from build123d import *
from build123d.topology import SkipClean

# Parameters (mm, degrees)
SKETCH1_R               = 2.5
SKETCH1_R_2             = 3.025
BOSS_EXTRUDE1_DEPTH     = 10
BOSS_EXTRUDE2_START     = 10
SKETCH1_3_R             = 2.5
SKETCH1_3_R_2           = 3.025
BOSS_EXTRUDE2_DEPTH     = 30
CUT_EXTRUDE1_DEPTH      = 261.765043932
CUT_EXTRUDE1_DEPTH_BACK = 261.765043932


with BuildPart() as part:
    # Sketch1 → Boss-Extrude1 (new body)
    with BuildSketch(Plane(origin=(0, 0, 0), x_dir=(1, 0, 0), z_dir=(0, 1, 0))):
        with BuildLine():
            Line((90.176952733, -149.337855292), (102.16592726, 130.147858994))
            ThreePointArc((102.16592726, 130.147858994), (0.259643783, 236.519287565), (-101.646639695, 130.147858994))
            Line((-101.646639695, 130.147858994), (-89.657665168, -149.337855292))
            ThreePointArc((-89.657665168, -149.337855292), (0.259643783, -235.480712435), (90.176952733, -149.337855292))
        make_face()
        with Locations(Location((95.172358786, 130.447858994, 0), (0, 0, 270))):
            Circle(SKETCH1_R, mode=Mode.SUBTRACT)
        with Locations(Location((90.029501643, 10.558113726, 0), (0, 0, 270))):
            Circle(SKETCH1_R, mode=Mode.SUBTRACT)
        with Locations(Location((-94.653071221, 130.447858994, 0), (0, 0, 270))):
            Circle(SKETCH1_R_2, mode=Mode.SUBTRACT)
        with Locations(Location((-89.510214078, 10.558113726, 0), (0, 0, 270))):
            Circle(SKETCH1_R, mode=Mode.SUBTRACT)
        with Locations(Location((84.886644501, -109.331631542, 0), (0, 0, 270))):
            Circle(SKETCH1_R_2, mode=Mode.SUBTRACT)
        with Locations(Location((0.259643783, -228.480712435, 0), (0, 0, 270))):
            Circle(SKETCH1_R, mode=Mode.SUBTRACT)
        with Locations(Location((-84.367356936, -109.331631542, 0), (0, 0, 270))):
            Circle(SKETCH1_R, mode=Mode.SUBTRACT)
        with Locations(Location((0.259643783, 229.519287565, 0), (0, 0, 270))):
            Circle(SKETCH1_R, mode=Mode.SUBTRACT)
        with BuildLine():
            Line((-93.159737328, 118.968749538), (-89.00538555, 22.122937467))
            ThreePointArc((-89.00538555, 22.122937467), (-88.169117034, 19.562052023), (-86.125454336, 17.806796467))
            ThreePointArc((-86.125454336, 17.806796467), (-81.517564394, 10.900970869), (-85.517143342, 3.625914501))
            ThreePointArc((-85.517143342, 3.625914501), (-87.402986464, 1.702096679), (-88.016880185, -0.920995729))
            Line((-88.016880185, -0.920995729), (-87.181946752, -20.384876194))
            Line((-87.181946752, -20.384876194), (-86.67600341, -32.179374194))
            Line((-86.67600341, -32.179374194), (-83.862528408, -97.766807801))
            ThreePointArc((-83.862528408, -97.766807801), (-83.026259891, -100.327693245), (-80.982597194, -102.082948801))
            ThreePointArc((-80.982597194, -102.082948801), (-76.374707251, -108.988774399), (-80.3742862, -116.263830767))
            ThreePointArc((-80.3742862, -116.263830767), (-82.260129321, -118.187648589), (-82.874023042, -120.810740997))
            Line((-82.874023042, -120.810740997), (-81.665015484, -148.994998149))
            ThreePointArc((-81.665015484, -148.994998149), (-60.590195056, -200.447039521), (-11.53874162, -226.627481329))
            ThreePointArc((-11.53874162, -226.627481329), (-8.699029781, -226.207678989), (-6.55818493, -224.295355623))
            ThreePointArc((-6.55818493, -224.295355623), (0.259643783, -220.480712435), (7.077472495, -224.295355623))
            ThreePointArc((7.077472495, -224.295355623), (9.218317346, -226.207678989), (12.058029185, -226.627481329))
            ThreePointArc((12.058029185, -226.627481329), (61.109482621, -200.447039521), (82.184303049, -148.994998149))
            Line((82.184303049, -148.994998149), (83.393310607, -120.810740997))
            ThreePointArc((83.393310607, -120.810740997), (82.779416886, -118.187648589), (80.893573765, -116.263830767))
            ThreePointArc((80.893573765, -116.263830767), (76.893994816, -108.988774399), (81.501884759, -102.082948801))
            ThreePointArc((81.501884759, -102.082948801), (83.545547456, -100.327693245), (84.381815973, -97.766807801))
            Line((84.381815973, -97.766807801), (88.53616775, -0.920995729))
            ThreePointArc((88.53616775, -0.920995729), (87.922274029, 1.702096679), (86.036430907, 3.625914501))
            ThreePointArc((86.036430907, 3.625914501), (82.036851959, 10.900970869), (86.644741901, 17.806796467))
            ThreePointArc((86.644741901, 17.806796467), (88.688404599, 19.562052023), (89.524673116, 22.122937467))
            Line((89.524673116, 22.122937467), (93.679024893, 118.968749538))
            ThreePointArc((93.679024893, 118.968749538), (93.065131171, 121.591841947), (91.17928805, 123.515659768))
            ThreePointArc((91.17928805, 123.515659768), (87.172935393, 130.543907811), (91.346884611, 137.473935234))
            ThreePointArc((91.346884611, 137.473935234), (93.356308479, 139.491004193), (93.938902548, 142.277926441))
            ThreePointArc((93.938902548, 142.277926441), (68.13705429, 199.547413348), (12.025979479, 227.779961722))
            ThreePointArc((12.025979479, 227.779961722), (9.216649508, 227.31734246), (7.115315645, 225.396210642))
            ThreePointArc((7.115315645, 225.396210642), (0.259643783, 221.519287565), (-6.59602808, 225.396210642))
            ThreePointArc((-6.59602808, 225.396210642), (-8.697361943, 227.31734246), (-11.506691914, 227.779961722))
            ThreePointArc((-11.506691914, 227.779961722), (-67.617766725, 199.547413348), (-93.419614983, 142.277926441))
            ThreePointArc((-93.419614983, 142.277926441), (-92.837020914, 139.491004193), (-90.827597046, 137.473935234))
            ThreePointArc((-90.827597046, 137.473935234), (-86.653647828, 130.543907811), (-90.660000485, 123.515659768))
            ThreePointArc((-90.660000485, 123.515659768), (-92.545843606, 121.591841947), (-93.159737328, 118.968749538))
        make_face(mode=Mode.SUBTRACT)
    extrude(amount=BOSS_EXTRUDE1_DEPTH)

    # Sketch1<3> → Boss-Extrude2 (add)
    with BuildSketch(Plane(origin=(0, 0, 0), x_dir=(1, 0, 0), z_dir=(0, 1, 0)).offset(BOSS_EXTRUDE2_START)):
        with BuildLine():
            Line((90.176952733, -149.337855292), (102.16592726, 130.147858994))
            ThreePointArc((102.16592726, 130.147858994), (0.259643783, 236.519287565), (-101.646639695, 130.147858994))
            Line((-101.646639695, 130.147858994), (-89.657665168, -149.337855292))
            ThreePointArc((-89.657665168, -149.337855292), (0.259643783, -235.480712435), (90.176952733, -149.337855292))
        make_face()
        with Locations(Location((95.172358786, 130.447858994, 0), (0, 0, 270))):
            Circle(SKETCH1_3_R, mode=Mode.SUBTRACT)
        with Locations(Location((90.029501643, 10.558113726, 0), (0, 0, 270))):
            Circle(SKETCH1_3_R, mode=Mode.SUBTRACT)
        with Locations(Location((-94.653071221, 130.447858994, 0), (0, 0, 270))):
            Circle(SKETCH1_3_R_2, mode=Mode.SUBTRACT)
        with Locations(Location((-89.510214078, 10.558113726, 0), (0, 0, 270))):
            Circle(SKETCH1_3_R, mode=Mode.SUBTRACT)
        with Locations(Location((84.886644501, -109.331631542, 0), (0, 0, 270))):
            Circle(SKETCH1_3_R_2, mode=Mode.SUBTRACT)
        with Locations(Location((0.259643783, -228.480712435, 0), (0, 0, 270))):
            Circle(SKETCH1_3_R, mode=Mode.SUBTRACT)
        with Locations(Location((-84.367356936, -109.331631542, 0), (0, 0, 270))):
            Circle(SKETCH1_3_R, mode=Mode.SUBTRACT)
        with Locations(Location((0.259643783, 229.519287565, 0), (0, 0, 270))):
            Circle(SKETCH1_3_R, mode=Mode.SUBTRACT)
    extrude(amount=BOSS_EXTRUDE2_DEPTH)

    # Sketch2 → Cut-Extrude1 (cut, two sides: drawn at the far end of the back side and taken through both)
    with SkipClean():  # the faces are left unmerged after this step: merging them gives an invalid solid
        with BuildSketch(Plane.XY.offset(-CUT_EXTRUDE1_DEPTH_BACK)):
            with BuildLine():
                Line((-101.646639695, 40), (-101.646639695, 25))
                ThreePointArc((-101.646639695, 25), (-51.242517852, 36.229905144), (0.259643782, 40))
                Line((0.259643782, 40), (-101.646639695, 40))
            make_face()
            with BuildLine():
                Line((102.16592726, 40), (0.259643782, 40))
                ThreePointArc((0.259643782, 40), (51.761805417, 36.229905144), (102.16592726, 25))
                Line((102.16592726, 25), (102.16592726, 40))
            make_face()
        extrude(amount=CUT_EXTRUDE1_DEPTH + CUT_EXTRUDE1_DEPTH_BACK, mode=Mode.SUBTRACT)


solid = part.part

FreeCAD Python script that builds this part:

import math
import FreeCAD as App
import Part
import Sketcher

V = App.Vector

doc = App.newDocument("Part")
body = doc.addObject("PartDesign::Body", "Body")

# Sketch on XZ plane
sketch1 = body.newObject("Sketcher::SketchObject", "Sketch")
sketch1.AttachmentSupport = (doc.getObject("XZ_Plane"), [""])
sketch1.MapMode = "FlatFace"
sketch1.addGeometry(Part.LineSegment(V(90.2, 149.3, 0), V(102.2, -130.1, 0)), False)
sketch1.addGeometry(Part.ArcOfCircle(Part.Circle(V(0.3, -134.5, 0), V(0, 0, 1), 102), math.radians(178), math.radians(362)), False)
sketch1.addGeometry(Part.LineSegment(V(-101.6, -130.1, 0), V(-89.7, 149.3, 0)), False)
sketch1.addGeometry(Part.ArcOfCircle(Part.Circle(V(0.3, 145.5, 0), V(0, 0, 1), 90), math.radians(2), math.radians(178)), False)
sketch1.addGeometry(Part.Circle(V(-84.4, 109.3, 0), V(0, 0, 1), 2.5), False)
sketch1.addGeometry(Part.Circle(V(0.3, 228.5, 0), V(0, 0, 1), 2.5), False)
sketch1.addGeometry(Part.Circle(V(84.9, 109.3, 0), V(0, 0, 1), 3), False)
sketch1.addGeometry(Part.Circle(V(-89.5, -10.6, 0), V(0, 0, 1), 2.5), False)
sketch1.addGeometry(Part.Circle(V(-94.7, -130.4, 0), V(0, 0, 1), 3), False)
sketch1.addGeometry(Part.LineSegment(V(-89, -22.1, 0), V(-93.2, -119, 0)), False)
sketch1.addGeometry(Part.ArcOfCircle(Part.Circle(V(-88.2, -119.2, 0), V(0, 0, 1), 5), math.radians(178), math.radians(240)), False)
sketch1.addGeometry(Part.ArcOfCircle(Part.Circle(V(-94.7, -130.4, 0), V(0, 0, 1), 8), math.radians(-61), math.radians(60)), False)
sketch1.addGeometry(Part.ArcOfCircle(Part.Circle(V(-88.4, -141.9, 0), V(0, 0, 1), 5), math.radians(119), math.radians(185)), False)
sketch1.addGeometry(Part.ArcOfCircle(Part.Circle(V(0.3, -134.5, 0), V(0, 0, 1), 94), math.radians(-175), math.radians(-97)), False)
sketch1.addGeometry(Part.ArcOfCircle(Part.Circle(V(-10.9, -222.8, 0), V(0, 0, 1), 5), math.radians(-97), math.radians(-31)), False)
sketch1.addGeometry(Part.ArcOfCircle(Part.Circle(V(0.3, -229.5, 0), V(0, 0, 1), 8), math.radians(31), math.radians(149)), False)
sketch1.addGeometry(Part.ArcOfCircle(Part.Circle(V(11.4, -222.8, 0), V(0, 0, 1), 5), math.radians(-149), math.radians(-83)), False)
sketch1.addGeometry(Part.ArcOfCircle(Part.Circle(V(0.3, -134.5, 0), V(0, 0, 1), 94), math.radians(-83), math.radians(-5)), False)
sketch1.addGeometry(Part.ArcOfCircle(Part.Circle(V(89, -141.9, 0), V(0, 0, 1), 5), math.radians(-5), math.radians(61)), False)
sketch1.addGeometry(Part.ArcOfCircle(Part.Circle(V(95.2, -130.4, 0), V(0, 0, 1), 8), math.radians(120), math.radians(241)), False)
sketch1.addGeometry(Part.ArcOfCircle(Part.Circle(V(88.7, -119.2, 0), V(0, 0, 1), 5), math.radians(-60), math.radians(2)), False)
sketch1.addGeometry(Part.LineSegment(V(93.7, -119, 0), V(89.5, -22.1, 0)), False)
sketch1.addGeometry(Part.ArcOfCircle(Part.Circle(V(84.5, -22.3, 0), V(0, 0, 1), 5), math.radians(2), math.radians(65)), False)
sketch1.addGeometry(Part.ArcOfCircle(Part.Circle(V(90, -10.6, 0), V(0, 0, 1), 8), math.radians(120), math.radians(245)), False)
sketch1.addGeometry(Part.ArcOfCircle(Part.Circle(V(83.5, 0.7, 0), V(0, 0, 1), 5), math.radians(-60), math.radians(2)), False)
sketch1.addGeometry(Part.LineSegment(V(88.5, 0.9, 0), V(84.4, 97.8, 0)), False)
sketch1.addGeometry(Part.ArcOfCircle(Part.Circle(V(79.4, 97.6, 0), V(0, 0, 1), 5), math.radians(2), math.radians(65)), False)
sketch1.addGeometry(Part.ArcOfCircle(Part.Circle(V(84.9, 109.3, 0), V(0, 0, 1), 8), math.radians(120), math.radians(245)), False)
sketch1.addGeometry(Part.ArcOfCircle(Part.Circle(V(78.4, 120.6, 0), V(0, 0, 1), 5), math.radians(-60), math.radians(2)), False)
sketch1.addGeometry(Part.LineSegment(V(83.4, 120.8, 0), V(82.2, 149, 0)), False)
sketch1.addGeometry(Part.ArcOfCircle(Part.Circle(V(0.3, 145.5, 0), V(0, 0, 1), 82), math.radians(2), math.radians(82)), False)
sketch1.addGeometry(Part.ArcOfCircle(Part.Circle(V(11.3, 221.7, 0), V(0, 0, 1), 5), math.radians(82), math.radians(148)), False)
sketch1.addGeometry(Part.ArcOfCircle(Part.Circle(V(0.3, 228.5, 0), V(0, 0, 1), 8), math.radians(-148), math.radians(-32)), False)
sketch1.addGeometry(Part.ArcOfCircle(Part.Circle(V(-10.8, 221.7, 0), V(0, 0, 1), 5), math.radians(32), math.radians(98)), False)
sketch1.addGeometry(Part.ArcOfCircle(Part.Circle(V(0.3, 145.5, 0), V(0, 0, 1), 82), math.radians(98), math.radians(178)), False)
sketch1.addGeometry(Part.LineSegment(V(-81.7, 149, 0), V(-82.9, 120.8, 0)), False)
sketch1.addGeometry(Part.ArcOfCircle(Part.Circle(V(-77.9, 120.6, 0), V(0, 0, 1), 5), math.radians(178), math.radians(240)), False)
sketch1.addGeometry(Part.ArcOfCircle(Part.Circle(V(-84.4, 109.3, 0), V(0, 0, 1), 8), math.radians(-65), math.radians(60)), False)
sketch1.addGeometry(Part.ArcOfCircle(Part.Circle(V(-78.9, 97.6, 0), V(0, 0, 1), 5), math.radians(115), math.radians(178)), False)
sketch1.addGeometry(Part.LineSegment(V(-83.9, 97.8, 0), V(-86.7, 32.2, 0)), False)
sketch1.addGeometry(Part.LineSegment(V(-86.7, 32.2, 0), V(-87.2, 20.4, 0)), False)
sketch1.addGeometry(Part.LineSegment(V(-87.2, 20.4, 0), V(-88, 0.9, 0)), False)
sketch1.addGeometry(Part.ArcOfCircle(Part.Circle(V(-83, 0.7, 0), V(0, 0, 1), 5), math.radians(178), math.radians(240)), False)
sketch1.addGeometry(Part.ArcOfCircle(Part.Circle(V(-89.5, -10.6, 0), V(0, 0, 1), 8), math.radians(-65), math.radians(60)), False)
sketch1.addGeometry(Part.ArcOfCircle(Part.Circle(V(-84, -22.3, 0), V(0, 0, 1), 5), math.radians(115), math.radians(178)), False)
sketch1.addGeometry(Part.Circle(V(90, -10.6, 0), V(0, 0, 1), 2.5), False)
sketch1.addGeometry(Part.Circle(V(0.3, -229.5, 0), V(0, 0, 1), 2.5), False)
sketch1.addGeometry(Part.Circle(V(95.2, -130.4, 0), V(0, 0, 1), 2.5), False)
sketch1.addConstraint(Sketcher.Constraint("Tangent", 0, 2, 1, 2))
sketch1.addConstraint(Sketcher.Constraint("Tangent", 1, 1, 2, 1))
sketch1.addConstraint(Sketcher.Constraint("Tangent", 2, 2, 3, 2))
sketch1.addConstraint(Sketcher.Constraint("Tangent", 3, 1, 0, 1))
sketch1.addConstraint(Sketcher.Constraint("Tangent", 9, 2, 10, 1))
sketch1.addConstraint(Sketcher.Constraint("Tangent", 10, 2, 11, 2))
sketch1.addConstraint(Sketcher.Constraint("Tangent", 11, 1, 12, 1))
sketch1.addConstraint(Sketcher.Constraint("Tangent", 12, 2, 13, 1))
sketch1.addConstraint(Sketcher.Constraint("Tangent", 13, 2, 14, 1))
sketch1.addConstraint(Sketcher.Constraint("Tangent", 14, 2, 15, 2))
sketch1.addConstraint(Sketcher.Constraint("Tangent", 15, 1, 16, 1))
sketch1.addConstraint(Sketcher.Constraint("Tangent", 16, 2, 17, 1))
sketch1.addConstraint(Sketcher.Constraint("Tangent", 17, 2, 18, 1))
sketch1.addConstraint(Sketcher.Constraint("Tangent", 18, 2, 19, 2))
sketch1.addConstraint(Sketcher.Constraint("Tangent", 19, 1, 20, 1))
sketch1.addConstraint(Sketcher.Constraint("Tangent", 20, 2, 21, 1))
sketch1.addConstraint(Sketcher.Constraint("Tangent", 21, 2, 22, 1))
sketch1.addConstraint(Sketcher.Constraint("Tangent", 22, 2, 23, 2))
sketch1.addConstraint(Sketcher.Constraint("Tangent", 23, 1, 24, 1))
sketch1.addConstraint(Sketcher.Constraint("Tangent", 24, 2, 25, 1))
sketch1.addConstraint(Sketcher.Constraint("Tangent", 25, 2, 26, 1))
sketch1.addConstraint(Sketcher.Constraint("Tangent", 26, 2, 27, 2))
sketch1.addConstraint(Sketcher.Constraint("Tangent", 27, 1, 28, 1))
sketch1.addConstraint(Sketcher.Constraint("Tangent", 28, 2, 29, 1))
sketch1.addConstraint(Sketcher.Constraint("Tangent", 29, 2, 30, 1))
sketch1.addConstraint(Sketcher.Constraint("Tangent", 30, 2, 31, 1))
sketch1.addConstraint(Sketcher.Constraint("Tangent", 31, 2, 32, 2))
sketch1.addConstraint(Sketcher.Constraint("Tangent", 32, 1, 33, 1))
sketch1.addConstraint(Sketcher.Constraint("Tangent", 33, 2, 34, 1))
sketch1.addConstraint(Sketcher.Constraint("Tangent", 34, 2, 35, 1))
sketch1.addConstraint(Sketcher.Constraint("Tangent", 35, 2, 36, 1))
sketch1.addConstraint(Sketcher.Constraint("Tangent", 36, 2, 37, 2))
sketch1.addConstraint(Sketcher.Constraint("Tangent", 37, 1, 38, 1))
sketch1.addConstraint(Sketcher.Constraint("Tangent", 38, 2, 39, 1))
sketch1.addConstraint(Sketcher.Constraint("Coincident", 39, 2, 40, 1))
sketch1.addConstraint(Sketcher.Constraint("Coincident", 40, 2, 41, 1))
sketch1.addConstraint(Sketcher.Constraint("Tangent", 41, 2, 42, 1))
sketch1.addConstraint(Sketcher.Constraint("Tangent", 42, 2, 43, 2))
sketch1.addConstraint(Sketcher.Constraint("Tangent", 43, 1, 44, 1))
sketch1.addConstraint(Sketcher.Constraint("Tangent", 44, 2, 9, 1))
sketch1.addConstraint(Sketcher.Constraint("Coincident", 11, 3, 8, 3))
sketch1.addConstraint(Sketcher.Constraint("Coincident", 13, 3, 1, 3))
sketch1.addConstraint(Sketcher.Constraint("Coincident", 17, 3, 1, 3))
sketch1.addConstraint(Sketcher.Constraint("Coincident", 27, 3, 6, 3))
sketch1.addConstraint(Sketcher.Constraint("Coincident", 30, 3, 3, 3))
sketch1.addConstraint(Sketcher.Constraint("Coincident", 32, 3, 5, 3))
sketch1.addConstraint(Sketcher.Constraint("Coincident", 34, 3, 3, 3))
sketch1.addConstraint(Sketcher.Constraint("Coincident", 37, 3, 4, 3))
sketch1.addConstraint(Sketcher.Constraint("Coincident", 43, 3, 7, 3))
sketch1.addConstraint(Sketcher.Constraint("Coincident", 45, 3, 23, 3))
sketch1.addConstraint(Sketcher.Constraint("Coincident", 46, 3, 15, 3))
sketch1.addConstraint(Sketcher.Constraint("Coincident", 47, 3, 19, 3))
sketch1.addConstraint(Sketcher.Constraint("Equal", 4, 5))
sketch1.addConstraint(Sketcher.Constraint("Equal", 5, 7))
sketch1.addConstraint(Sketcher.Constraint("Equal", 6, 8))
sketch1.addConstraint(Sketcher.Constraint("Equal", 10, 12))
sketch1.addConstraint(Sketcher.Constraint("Equal", 12, 14))
sketch1.addConstraint(Sketcher.Constraint("Equal", 11, 15))
sketch1.addConstraint(Sketcher.Constraint("Equal", 14, 16))
sketch1.addConstraint(Sketcher.Constraint("Equal", 13, 17))
sketch1.addConstraint(Sketcher.Constraint("Equal", 16, 18))
sketch1.addConstraint(Sketcher.Constraint("Equal", 15, 19))
sketch1.addConstraint(Sketcher.Constraint("Equal", 18, 20))
sketch1.addConstraint(Sketcher.Constraint("Equal", 20, 22))
sketch1.addConstraint(Sketcher.Constraint("Equal", 19, 23))
sketch1.addConstraint(Sketcher.Constraint("Equal", 22, 24))
sketch1.addConstraint(Sketcher.Constraint("Equal", 24, 26))
sketch1.addConstraint(Sketcher.Constraint("Equal", 23, 27))
sketch1.addConstraint(Sketcher.Constraint("Equal", 26, 28))
sketch1.addConstraint(Sketcher.Constraint("Equal", 28, 31))
sketch1.addConstraint(Sketcher.Constraint("Equal", 27, 32))
sketch1.addConstraint(Sketcher.Constraint("Equal", 31, 33))
sketch1.addConstraint(Sketcher.Constraint("Equal", 30, 34))
sketch1.addConstraint(Sketcher.Constraint("Equal", 33, 36))
sketch1.addConstraint(Sketcher.Constraint("Equal", 32, 37))
sketch1.addConstraint(Sketcher.Constraint("Equal", 36, 38))
sketch1.addConstraint(Sketcher.Constraint("Equal", 38, 42))
sketch1.addConstraint(Sketcher.Constraint("Equal", 37, 43))
sketch1.addConstraint(Sketcher.Constraint("Equal", 42, 44))
sketch1.addConstraint(Sketcher.Constraint("Equal", 7, 45))
sketch1.addConstraint(Sketcher.Constraint("Equal", 45, 46))
sketch1.addConstraint(Sketcher.Constraint("Equal", 46, 47))
sketch1.addConstraint(Sketcher.Constraint("Parallel", 2, 9))
sketch1.addConstraint(Sketcher.Constraint("Parallel", 0, 21))
sketch1.addConstraint(Sketcher.Constraint("Parallel", 21, 25))
sketch1.addConstraint(Sketcher.Constraint("Parallel", 25, 29))
sketch1.addConstraint(Sketcher.Constraint("Parallel", 9, 35))
sketch1.addConstraint(Sketcher.Constraint("Parallel", 35, 39))
sketch1.addConstraint(Sketcher.Constraint("Parallel", 39, 40))
sketch1.addConstraint(Sketcher.Constraint("Parallel", 40, 41))
sketch1.addConstraint(Sketcher.Constraint("Horizontal", 4, 3, 6, 3))
sketch1.addConstraint(Sketcher.Constraint("Horizontal", 14, 3, 16, 3))
sketch1.addConstraint(Sketcher.Constraint("Horizontal", 12, 3, 18, 3))
sketch1.addConstraint(Sketcher.Constraint("Horizontal", 11, 3, 19, 3))
sketch1.addConstraint(Sketcher.Constraint("Horizontal", 10, 3, 20, 3))
sketch1.addConstraint(Sketcher.Constraint("Horizontal", 7, 3, 23, 3))
sketch1.addConstraint(Sketcher.Constraint("Horizontal", 31, 3, 33, 3))
sketch1.addConstraint(Sketcher.Constraint("Horizontal", 28, 3, 36, 3))
sketch1.addConstraint(Sketcher.Constraint("Horizontal", 26, 3, 38, 3))
sketch1.addConstraint(Sketcher.Constraint("Horizontal", 24, 3, 42, 3))
sketch1.addConstraint(Sketcher.Constraint("Horizontal", 22, 3, 44, 3))
sketch1.addConstraint(Sketcher.Constraint("Equal", 21, 25))
sketch1.addConstraint(Sketcher.Constraint("Diameter", 4, 5.0))
sketch1.addConstraint(Sketcher.Constraint("Radius", 1, 102.0))
sketch1.addConstraint(Sketcher.Constraint("Radius", 3, 90.0))
sketch1.addConstraint(Sketcher.Constraint("Radius", 10, 5.0))
sketch1.addConstraint(Sketcher.Constraint("Radius", 11, 8.0))
sketch1.addConstraint(Sketcher.Constraint("Radius", 13, 94.0))
sketch1.addConstraint(Sketcher.Constraint("Radius", 30, 82.0))
sketch1.addConstraint(Sketcher.Constraint("Diameter", 6, 6.05))
sketch1.addConstraint(Sketcher.Constraint("DistanceX", 10, 2, -1, 1, 90.66))
sketch1.addConstraint(Sketcher.Constraint("DistanceY", -1, 1, 29, 2, 148.994998))
sketch1.addConstraint(Sketcher.Constraint("DistanceX", -1, 1, 23, 3, 90.029502))
sketch1.addConstraint(Sketcher.Constraint("Distance", 0, 279.742739))
sketch1.addConstraint(Sketcher.Constraint("Distance", 39, 65.64775))
sketch1.addConstraint(Sketcher.Constraint("Distance", 41, 19.48178))
sketch1.addConstraint(Sketcher.Constraint("DistanceY", -1, 1, 4, 3, 109.331632))
sketch1.addConstraint(Sketcher.Constraint("DistanceX", 8, 3, -1, 1, 94.653071))
sketch1.addConstraint(Sketcher.Constraint("DistanceY", 8, 3, -1, 1, 130.447859))
sketch1.addConstraint(Sketcher.Constraint("DistanceX", -1, 1, 16, 3, 11.400111))
sketch1.addConstraint(Sketcher.Constraint("DistanceX", -1, 1, 19, 3, 95.172359))
sketch1.addConstraint(Sketcher.Constraint("DistanceX", -1, 1, 24, 3, 83.540762))
sketch1.addConstraint(Sketcher.Constraint("DistanceY", -1, 1, 24, 3, 0.70671))
sketch1.addConstraint(Sketcher.Constraint("DistanceX", -1, 1, 30, 2, 12.058029))
pad1 = body.newObject("PartDesign::Pad", "Pad")
pad1.Profile = sketch1
pad1.Length = 10
pad1.Reversed = True

# Sketch on XZ plane
sketch2 = body.newObject("Sketcher::SketchObject", "Sketch001")
sketch2.AttachmentSupport = (doc.getObject("XZ_Plane"), [""])
sketch2.MapMode = "FlatFace"
sketch2.AttachmentOffset = App.Placement(V(0, 0, -10), App.Rotation())
sketch2.addGeometry(Part.LineSegment(V(90.2, 149.3, 0), V(102.2, -130.1, 0)), False)
sketch2.addGeometry(Part.ArcOfCircle(Part.Circle(V(0.3, -134.5, 0), V(0, 0, 1), 102), math.radians(178), math.radians(362)), False)
sketch2.addGeometry(Part.LineSegment(V(-101.6, -130.1, 0), V(-89.7, 149.3, 0)), False)
sketch2.addGeometry(Part.ArcOfCircle(Part.Circle(V(0.3, 145.5, 0), V(0, 0, 1), 90), math.radians(2), math.radians(178)), False)
sketch2.addGeometry(Part.Circle(V(-84.4, 109.3, 0), V(0, 0, 1), 2.5), False)
sketch2.addGeometry(Part.Circle(V(0.3, 228.5, 0), V(0, 0, 1), 2.5), False)
sketch2.addGeometry(Part.Circle(V(84.9, 109.3, 0), V(0, 0, 1), 3), False)
sketch2.addGeometry(Part.Circle(V(-89.5, -10.6, 0), V(0, 0, 1), 2.5), False)
sketch2.addGeometry(Part.Circle(V(-94.7, -130.4, 0), V(0, 0, 1), 3), False)
sketch2.addGeometry(Part.Circle(V(90, -10.6, 0), V(0, 0, 1), 2.5), False)
sketch2.addGeometry(Part.Circle(V(0.3, -229.5, 0), V(0, 0, 1), 2.5), False)
sketch2.addGeometry(Part.Circle(V(95.2, -130.4, 0), V(0, 0, 1), 2.5), False)
sketch2.addConstraint(Sketcher.Constraint("Tangent", 0, 2, 1, 2))
sketch2.addConstraint(Sketcher.Constraint("Tangent", 1, 1, 2, 1))
sketch2.addConstraint(Sketcher.Constraint("Tangent", 2, 2, 3, 2))
sketch2.addConstraint(Sketcher.Constraint("Tangent", 3, 1, 0, 1))
sketch2.addConstraint(Sketcher.Constraint("Equal", 4, 5))
sketch2.addConstraint(Sketcher.Constraint("Equal", 5, 7))
sketch2.addConstraint(Sketcher.Constraint("Equal", 6, 8))
sketch2.addConstraint(Sketcher.Constraint("Equal", 7, 9))
sketch2.addConstraint(Sketcher.Constraint("Equal", 9, 10))
sketch2.addConstraint(Sketcher.Constraint("Equal", 10, 11))
sketch2.addConstraint(Sketcher.Constraint("Horizontal", 4, 3, 6, 3))
sketch2.addConstraint(Sketcher.Constraint("Horizontal", 7, 3, 9, 3))
sketch2.addConstraint(Sketcher.Constraint("Horizontal", 8, 3, 11, 3))
sketch2.addConstraint(Sketcher.Constraint("Horizontal", 0, 2, 1, 1))
sketch2.addConstraint(Sketcher.Constraint("Vertical", 3, 3, 5, 3))
sketch2.addConstraint(Sketcher.Constraint("Vertical", 5, 3, 10, 3))
sketch2.addConstraint(Sketcher.Constraint("Diameter", 4, 5.0))
sketch2.addConstraint(Sketcher.Constraint("Radius", 1, 102.0))
sketch2.addConstraint(Sketcher.Constraint("Radius", 3, 90.0))
sketch2.addConstraint(Sketcher.Constraint("Diameter", 6, 6.05))
sketch2.addConstraint(Sketcher.Constraint("DistanceY", 1, 3, 3, 3, 280.0))
sketch2.addConstraint(Sketcher.Constraint("DistanceY", 3, 3, 5, 3, 83.0))
sketch2.addConstraint(Sketcher.Constraint("DistanceY", 10, 3, 1, 3, 95.0))
sketch2.addConstraint(Sketcher.Constraint("DistanceY", 11, 3, 0, 2, 0.3))
sketch2.addConstraint(Sketcher.Constraint("DistanceX", 4, 3, 3, 3, 84.627001))
sketch2.addConstraint(Sketcher.Constraint("DistanceX", 3, 3, 6, 3, 84.627001))
sketch2.addConstraint(Sketcher.Constraint("DistanceX", 8, 3, 0, 2, 196.818998))
sketch2.addConstraint(Sketcher.Constraint("DistanceX", 1, 1, 11, 3, 196.818998))
sketch2.addConstraint(Sketcher.Constraint("DistanceX", -1, 1, 9, 3, 90.029502))
sketch2.addConstraint(Sketcher.Constraint("DistanceY", -1, 1, 4, 3, 109.331632))
sketch2.addConstraint(Sketcher.Constraint("DistanceX", 8, 3, -1, 1, 94.653071))
sketch2.addConstraint(Sketcher.Constraint("DistanceY", 8, 3, -1, 1, 130.447859))
sketch2.addConstraint(Sketcher.Constraint("DistanceX", 7, 3, 6, 3, 174.396859))
sketch2.addConstraint(Sketcher.Constraint("DistanceY", 7, 3, 2, 2, 159.895969))
pad2 = body.newObject("PartDesign::Pad", "Pad001")
pad2.Profile = sketch2
pad2.Length = 30
pad2.Reversed = True

# Sketch on XY plane
sketch3 = body.newObject("Sketcher::SketchObject", "Sketch002")
sketch3.AttachmentSupport = (doc.getObject("XY_Plane"), [""])
sketch3.MapMode = "FlatFace"
sketch3.addGeometry(Part.LineSegment(V(-102, 40, 0), V(-102, 25, 0)), False)
sketch3.addGeometry(Part.ArcOfCircle(Part.Circle(V(0, -314, 0), V(0, 0, 1), 354), math.radians(90), math.radians(106.75)), False)
sketch3.addGeometry(Part.LineSegment(V(0, 40, 0), V(-102, 40, 0)), False)
sketch3.addGeometry(Part.LineSegment(V(102, 40, 0), V(0, 40, 0)), False)
sketch3.addGeometry(Part.ArcOfCircle(Part.Circle(V(0, -314, 0), V(0, 0, 1), 354), math.radians(73.25), math.radians(90)), False)
sketch3.addGeometry(Part.LineSegment(V(102, 25, 0), V(102, 40, 0)), False)
sketch3.addConstraint(Sketcher.Constraint("Coincident", 0, 2, 1, 2))
sketch3.addConstraint(Sketcher.Constraint("Tangent", 1, 1, 2, 1))
sketch3.addConstraint(Sketcher.Constraint("Coincident", 2, 2, 0, 1))
sketch3.addConstraint(Sketcher.Constraint("Tangent", 3, 2, 4, 2))
sketch3.addConstraint(Sketcher.Constraint("Coincident", 4, 1, 5, 1))
sketch3.addConstraint(Sketcher.Constraint("Coincident", 5, 2, 3, 1))
sketch3.addConstraint(Sketcher.Constraint("Vertical", 0))
sketch3.addConstraint(Sketcher.Constraint("Horizontal", 2))
sketch3.addConstraint(Sketcher.Constraint("Horizontal", 3))
sketch3.addConstraint(Sketcher.Constraint("Vertical", 5))
sketch3.addConstraint(Sketcher.Constraint("Coincident", 4, 3, 1, 3))
sketch3.addConstraint(Sketcher.Constraint("Equal", 1, 4))
sketch3.addConstraint(Sketcher.Constraint("Horizontal", 0, 2, 4, 1))
sketch3.addConstraint(Sketcher.Constraint("DistanceY", 0, 2, 0, 1, 15.0))
sketch3.addConstraint(Sketcher.Constraint("DistanceY", -1, 1, 0, 2, 25.0))
sketch3.addConstraint(Sketcher.Constraint("Radius", 1, 353.66302))
sketch3.addConstraint(Sketcher.Constraint("DistanceX", 0, 2, -1, 1, 101.64664))
pocket1 = body.newObject("PartDesign::Pocket", "Pocket")
pocket1.Profile = sketch3
pocket1.Type = "ThroughAll"
pocket1.Midplane = True

doc.recompute()
